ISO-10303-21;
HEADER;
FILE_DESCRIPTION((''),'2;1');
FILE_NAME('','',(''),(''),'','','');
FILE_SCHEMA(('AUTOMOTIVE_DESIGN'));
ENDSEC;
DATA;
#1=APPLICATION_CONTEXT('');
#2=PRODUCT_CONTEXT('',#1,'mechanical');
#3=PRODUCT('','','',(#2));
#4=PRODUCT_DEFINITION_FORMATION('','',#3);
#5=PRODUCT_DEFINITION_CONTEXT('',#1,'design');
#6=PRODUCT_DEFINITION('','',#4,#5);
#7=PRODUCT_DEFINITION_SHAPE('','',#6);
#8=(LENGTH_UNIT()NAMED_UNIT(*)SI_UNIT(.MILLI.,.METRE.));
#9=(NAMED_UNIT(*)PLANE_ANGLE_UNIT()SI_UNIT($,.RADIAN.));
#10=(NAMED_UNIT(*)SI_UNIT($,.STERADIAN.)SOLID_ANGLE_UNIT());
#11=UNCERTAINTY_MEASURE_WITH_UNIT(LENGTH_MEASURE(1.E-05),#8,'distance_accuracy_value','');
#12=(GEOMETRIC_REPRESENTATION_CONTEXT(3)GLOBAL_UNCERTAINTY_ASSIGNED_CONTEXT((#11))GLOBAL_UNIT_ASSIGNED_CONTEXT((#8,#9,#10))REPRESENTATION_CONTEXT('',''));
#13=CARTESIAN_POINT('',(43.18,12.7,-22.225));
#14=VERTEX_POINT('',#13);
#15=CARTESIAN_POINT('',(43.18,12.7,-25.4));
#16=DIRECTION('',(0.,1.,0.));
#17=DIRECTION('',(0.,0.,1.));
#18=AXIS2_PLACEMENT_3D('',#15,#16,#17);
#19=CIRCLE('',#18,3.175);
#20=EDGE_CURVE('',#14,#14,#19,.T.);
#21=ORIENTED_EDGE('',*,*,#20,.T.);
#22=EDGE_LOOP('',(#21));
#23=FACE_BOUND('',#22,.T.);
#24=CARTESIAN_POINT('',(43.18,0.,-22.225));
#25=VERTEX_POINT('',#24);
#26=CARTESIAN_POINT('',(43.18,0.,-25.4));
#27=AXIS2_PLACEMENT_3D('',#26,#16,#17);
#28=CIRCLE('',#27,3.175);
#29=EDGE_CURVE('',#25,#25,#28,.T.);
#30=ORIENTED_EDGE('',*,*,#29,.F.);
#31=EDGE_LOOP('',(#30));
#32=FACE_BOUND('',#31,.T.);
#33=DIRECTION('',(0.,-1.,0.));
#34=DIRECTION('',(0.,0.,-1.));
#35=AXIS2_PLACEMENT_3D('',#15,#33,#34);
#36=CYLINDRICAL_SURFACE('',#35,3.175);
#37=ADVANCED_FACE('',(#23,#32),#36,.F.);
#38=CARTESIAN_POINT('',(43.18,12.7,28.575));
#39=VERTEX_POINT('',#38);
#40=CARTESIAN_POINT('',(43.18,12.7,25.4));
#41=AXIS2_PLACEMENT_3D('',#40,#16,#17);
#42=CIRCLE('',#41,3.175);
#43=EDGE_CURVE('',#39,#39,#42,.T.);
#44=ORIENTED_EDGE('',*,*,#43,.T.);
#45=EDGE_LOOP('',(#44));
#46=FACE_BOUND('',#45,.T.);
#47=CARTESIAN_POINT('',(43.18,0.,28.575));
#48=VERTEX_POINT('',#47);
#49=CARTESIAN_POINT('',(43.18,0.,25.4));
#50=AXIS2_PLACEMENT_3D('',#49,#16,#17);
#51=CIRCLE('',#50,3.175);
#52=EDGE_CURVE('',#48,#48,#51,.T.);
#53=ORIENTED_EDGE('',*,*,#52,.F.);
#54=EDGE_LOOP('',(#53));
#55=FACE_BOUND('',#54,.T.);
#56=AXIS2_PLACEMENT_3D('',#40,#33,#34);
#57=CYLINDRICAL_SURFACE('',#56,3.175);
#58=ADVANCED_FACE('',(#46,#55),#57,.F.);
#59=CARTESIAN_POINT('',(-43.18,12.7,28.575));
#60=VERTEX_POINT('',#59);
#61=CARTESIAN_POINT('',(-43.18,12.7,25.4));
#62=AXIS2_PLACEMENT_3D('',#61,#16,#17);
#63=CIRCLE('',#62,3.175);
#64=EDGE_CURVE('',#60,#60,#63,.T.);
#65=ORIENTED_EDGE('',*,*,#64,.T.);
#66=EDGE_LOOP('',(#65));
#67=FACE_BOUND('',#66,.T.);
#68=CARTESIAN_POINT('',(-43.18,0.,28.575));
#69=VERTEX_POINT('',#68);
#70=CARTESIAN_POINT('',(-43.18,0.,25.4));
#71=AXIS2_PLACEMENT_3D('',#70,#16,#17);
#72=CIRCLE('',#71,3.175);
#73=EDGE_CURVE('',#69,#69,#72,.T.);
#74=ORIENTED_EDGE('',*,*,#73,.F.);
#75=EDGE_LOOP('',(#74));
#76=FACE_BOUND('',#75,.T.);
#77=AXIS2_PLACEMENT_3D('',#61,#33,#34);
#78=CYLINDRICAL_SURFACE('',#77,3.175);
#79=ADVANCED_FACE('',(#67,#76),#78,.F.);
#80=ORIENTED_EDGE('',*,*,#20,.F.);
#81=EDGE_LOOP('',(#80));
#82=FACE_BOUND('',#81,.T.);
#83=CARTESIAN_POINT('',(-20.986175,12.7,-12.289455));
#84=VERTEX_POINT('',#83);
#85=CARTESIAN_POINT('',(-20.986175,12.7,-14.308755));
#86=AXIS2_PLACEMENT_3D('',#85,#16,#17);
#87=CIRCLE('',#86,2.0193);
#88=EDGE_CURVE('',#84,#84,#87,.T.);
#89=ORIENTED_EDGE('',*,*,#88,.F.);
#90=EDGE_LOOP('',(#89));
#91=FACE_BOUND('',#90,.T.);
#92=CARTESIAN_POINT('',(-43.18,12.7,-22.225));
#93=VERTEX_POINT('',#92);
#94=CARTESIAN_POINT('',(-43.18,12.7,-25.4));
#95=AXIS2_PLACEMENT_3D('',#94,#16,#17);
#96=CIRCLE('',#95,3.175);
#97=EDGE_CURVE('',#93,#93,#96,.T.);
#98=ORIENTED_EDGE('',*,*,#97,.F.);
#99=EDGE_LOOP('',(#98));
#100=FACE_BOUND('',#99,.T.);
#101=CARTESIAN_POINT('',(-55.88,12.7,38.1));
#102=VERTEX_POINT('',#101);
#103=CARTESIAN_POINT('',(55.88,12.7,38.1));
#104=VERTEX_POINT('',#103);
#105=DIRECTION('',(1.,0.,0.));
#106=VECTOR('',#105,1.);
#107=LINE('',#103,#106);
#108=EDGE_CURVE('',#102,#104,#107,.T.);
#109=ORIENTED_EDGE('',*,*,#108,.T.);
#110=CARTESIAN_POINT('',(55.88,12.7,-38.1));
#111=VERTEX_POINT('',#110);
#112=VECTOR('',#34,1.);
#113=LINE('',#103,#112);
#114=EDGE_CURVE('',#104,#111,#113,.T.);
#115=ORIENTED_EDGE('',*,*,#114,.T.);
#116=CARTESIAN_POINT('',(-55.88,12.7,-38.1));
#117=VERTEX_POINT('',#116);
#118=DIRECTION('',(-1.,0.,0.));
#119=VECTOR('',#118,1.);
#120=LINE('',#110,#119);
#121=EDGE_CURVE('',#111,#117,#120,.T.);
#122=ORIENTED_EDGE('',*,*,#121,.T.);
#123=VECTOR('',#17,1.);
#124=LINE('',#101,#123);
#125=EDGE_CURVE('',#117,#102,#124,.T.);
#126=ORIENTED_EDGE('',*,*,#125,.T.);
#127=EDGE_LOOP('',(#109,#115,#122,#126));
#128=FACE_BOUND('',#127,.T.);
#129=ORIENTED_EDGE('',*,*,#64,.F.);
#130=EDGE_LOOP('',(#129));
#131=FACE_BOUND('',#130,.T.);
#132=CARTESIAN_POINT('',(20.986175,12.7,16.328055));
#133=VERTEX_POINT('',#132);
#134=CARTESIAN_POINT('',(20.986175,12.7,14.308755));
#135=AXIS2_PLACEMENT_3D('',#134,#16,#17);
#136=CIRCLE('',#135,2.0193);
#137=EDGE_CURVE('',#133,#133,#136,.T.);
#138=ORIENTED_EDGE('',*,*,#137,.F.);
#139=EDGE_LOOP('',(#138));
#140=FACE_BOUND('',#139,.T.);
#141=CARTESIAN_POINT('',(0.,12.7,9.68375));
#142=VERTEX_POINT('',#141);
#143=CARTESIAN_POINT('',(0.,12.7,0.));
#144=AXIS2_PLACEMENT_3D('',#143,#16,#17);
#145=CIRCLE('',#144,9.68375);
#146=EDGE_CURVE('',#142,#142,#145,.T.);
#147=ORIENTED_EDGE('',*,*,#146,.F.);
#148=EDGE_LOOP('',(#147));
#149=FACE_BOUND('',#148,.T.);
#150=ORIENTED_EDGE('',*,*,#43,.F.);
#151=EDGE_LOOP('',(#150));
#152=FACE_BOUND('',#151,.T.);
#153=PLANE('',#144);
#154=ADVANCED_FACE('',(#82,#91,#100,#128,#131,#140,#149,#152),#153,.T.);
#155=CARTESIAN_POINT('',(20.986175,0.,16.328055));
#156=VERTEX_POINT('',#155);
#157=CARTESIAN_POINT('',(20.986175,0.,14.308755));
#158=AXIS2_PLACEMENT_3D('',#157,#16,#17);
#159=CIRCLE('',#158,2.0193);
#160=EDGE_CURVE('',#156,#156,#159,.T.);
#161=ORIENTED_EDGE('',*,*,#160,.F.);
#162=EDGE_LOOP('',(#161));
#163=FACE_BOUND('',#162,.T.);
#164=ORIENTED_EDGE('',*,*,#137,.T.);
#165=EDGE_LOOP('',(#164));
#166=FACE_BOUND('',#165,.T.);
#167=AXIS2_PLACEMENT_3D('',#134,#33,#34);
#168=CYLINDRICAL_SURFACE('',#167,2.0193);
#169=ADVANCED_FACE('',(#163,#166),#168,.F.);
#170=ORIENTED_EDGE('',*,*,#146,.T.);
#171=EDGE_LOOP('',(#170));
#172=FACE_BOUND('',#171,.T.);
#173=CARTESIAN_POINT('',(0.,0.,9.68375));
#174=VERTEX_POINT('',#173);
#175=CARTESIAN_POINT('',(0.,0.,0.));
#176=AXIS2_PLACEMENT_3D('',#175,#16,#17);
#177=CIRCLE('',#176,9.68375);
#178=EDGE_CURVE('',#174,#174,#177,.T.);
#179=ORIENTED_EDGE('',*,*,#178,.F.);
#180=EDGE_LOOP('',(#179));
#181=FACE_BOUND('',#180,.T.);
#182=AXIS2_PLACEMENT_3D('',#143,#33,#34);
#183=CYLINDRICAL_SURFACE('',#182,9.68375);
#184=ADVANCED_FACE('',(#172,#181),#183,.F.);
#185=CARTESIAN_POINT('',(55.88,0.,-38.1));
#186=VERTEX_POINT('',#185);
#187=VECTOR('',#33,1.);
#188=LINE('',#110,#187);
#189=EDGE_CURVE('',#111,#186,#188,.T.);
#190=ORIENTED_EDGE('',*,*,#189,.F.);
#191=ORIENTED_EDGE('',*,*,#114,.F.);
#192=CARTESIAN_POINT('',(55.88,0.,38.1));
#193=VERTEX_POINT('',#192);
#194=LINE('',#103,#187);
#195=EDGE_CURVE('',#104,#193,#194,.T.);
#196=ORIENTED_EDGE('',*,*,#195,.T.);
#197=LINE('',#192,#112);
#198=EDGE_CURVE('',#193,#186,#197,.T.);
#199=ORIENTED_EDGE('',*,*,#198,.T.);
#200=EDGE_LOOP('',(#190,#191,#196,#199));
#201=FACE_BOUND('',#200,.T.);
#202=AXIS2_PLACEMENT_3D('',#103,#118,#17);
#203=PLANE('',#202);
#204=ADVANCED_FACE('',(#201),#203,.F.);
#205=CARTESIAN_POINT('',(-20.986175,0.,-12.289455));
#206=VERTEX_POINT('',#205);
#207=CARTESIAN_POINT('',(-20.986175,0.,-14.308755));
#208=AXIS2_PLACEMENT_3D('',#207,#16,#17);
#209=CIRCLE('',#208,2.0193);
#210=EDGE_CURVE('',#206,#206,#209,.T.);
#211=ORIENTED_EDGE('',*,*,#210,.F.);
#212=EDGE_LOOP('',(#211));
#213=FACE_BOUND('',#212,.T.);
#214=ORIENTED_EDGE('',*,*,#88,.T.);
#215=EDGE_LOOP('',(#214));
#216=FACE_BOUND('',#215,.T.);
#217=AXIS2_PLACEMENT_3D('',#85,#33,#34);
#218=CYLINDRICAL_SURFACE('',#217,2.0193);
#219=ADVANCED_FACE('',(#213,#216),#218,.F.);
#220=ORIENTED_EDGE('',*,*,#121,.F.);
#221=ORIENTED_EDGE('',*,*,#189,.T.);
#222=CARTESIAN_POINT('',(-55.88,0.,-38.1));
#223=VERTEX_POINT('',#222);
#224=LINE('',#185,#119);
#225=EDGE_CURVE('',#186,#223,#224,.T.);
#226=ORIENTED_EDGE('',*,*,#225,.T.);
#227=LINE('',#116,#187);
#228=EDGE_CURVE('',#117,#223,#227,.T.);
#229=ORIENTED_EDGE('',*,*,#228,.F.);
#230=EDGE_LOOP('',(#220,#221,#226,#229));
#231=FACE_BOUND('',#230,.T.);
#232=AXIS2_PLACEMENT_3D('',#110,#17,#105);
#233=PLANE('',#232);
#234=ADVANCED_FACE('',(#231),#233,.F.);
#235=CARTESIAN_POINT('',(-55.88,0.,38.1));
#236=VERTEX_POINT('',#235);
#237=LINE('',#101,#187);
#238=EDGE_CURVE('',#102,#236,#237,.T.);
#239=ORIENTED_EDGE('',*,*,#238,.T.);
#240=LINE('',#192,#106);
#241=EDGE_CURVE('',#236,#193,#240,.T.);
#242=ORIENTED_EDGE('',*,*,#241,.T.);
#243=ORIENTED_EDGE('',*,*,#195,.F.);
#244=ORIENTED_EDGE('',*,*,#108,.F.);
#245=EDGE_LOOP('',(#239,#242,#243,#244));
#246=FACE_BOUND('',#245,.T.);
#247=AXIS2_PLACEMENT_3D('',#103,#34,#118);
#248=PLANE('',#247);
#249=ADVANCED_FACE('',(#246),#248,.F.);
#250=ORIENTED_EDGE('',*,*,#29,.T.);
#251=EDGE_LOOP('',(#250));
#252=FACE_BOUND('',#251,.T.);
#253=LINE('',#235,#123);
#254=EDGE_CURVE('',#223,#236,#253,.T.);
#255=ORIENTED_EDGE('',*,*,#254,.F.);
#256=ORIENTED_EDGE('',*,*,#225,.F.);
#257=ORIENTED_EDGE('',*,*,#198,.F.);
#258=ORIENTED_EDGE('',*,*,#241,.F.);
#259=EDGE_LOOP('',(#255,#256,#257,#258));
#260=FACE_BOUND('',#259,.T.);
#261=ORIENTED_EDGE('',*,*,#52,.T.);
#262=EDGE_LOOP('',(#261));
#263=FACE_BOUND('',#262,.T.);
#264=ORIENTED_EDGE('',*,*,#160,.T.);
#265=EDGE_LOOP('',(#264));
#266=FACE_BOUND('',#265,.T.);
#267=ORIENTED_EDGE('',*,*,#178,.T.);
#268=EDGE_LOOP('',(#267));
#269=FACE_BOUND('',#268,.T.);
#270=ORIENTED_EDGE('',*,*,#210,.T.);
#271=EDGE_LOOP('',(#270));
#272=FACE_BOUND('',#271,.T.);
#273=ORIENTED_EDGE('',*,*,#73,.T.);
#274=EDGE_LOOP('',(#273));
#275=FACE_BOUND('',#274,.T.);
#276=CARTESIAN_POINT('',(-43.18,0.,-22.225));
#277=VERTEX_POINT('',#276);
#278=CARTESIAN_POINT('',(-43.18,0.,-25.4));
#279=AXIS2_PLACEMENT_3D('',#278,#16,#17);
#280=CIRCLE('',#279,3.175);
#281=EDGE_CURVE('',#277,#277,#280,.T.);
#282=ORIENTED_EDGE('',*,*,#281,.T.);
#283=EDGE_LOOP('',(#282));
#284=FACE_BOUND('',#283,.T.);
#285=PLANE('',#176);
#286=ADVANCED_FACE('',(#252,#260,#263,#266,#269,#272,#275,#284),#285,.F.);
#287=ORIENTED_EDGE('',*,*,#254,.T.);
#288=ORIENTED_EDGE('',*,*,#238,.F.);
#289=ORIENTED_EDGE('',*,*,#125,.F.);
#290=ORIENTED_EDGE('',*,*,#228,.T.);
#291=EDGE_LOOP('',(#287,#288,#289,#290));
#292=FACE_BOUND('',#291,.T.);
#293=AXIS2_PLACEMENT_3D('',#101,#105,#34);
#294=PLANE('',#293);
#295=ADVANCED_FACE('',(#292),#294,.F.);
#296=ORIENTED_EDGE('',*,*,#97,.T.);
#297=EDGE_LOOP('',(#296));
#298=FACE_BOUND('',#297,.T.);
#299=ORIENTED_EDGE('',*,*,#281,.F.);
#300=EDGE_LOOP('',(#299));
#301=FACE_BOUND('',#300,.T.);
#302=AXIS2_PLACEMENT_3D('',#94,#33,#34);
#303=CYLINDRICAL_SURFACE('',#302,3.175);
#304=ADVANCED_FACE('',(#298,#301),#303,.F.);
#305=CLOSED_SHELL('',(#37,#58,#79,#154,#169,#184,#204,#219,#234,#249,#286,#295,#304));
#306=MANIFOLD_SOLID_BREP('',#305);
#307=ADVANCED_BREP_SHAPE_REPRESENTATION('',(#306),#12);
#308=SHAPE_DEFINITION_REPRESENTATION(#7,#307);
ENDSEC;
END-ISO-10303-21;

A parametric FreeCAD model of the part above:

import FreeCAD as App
import Part
import Sketcher

V = App.Vector
Q = App.Units.Quantity


def add_polygon(sketch, points):
    """Adds a closed chain of lines whose ends are joined by coincident constraints."""
    first, n = sketch.GeometryCount, len(points)
    for a, b in zip(points, points[1:] + points[:1]):
        sketch.addGeometry(Part.LineSegment(App.Vector(*a, 0), App.Vector(*b, 0)), False)
    for i in range(n):
        sketch.addConstraint(Sketcher.Constraint("Coincident", first + i, 2, first + (i + 1) % n, 1))

doc = App.newDocument("Part")
params = doc.addObject("Spreadsheet::Sheet", "Params")
for row, (alias, value) in enumerate([
    ("sketch1_diameter", "0.25 in"),
    ("sketch1_height", "3 in"),
    ("sketch1_diameter2", "0.159 in"),
    ("sketch1_width", "4.4 in"),
    ("pad1_length", "0.5 in"),
], start=1):
    params.set(f"A{row}", alias)
    params.set(f"B{row}", "=" + value)
    params.setAlias(f"B{row}", alias)

body = doc.addObject("PartDesign::Body", "Body")

sketch1 = body.newObject("Sketcher::SketchObject", "Sketch")
sketch1.AttachmentSupport = (doc.getObject("XZ_Plane"), [""])
sketch1.MapMode = "FlatFace"
add_polygon(sketch1, [(-55.88, -38.1), (-55.88, 38.1), (55.88, 38.1), (55.88, -38.1)])
sketch1.addGeometry(Part.Circle(V(-43.18, 25.4, 0), V(0, 0, 1), 3.175), False)
sketch1.addGeometry(Part.Circle(V(20.986175, 14.308755, 0), V(0, 0, 1), 2.0193), False)
sketch1.addGeometry(Part.Circle(V(43.18, 25.4, 0), V(0, 0, 1), 3.175), False)
sketch1.addGeometry(Part.Circle(V(0, 0, 0), V(0, 0, 1), 9.68375), False)
sketch1.addGeometry(Part.Circle(V(-43.18, -25.4, 0), V(0, 0, 1), 3.175), False)
sketch1.addGeometry(Part.Circle(V(-20.986175, -14.308755, 0), V(0, 0, 1), 2.0193), False)
sketch1.addGeometry(Part.Circle(V(43.18, -25.4, 0), V(0, 0, 1), 3.175), False)
sketch1.addConstraint([
    Sketcher.Constraint("Vertical", 0),
    Sketcher.Constraint("Horizontal", 1),
    Sketcher.Constraint("Vertical", 2),
    Sketcher.Constraint("Horizontal", 3),
    Sketcher.Constraint("Coincident", 7, 3, -1, 1),
    Sketcher.Constraint("Equal", 4, 6),
    Sketcher.Constraint("Equal", 6, 8),
    Sketcher.Constraint("Equal", 5, 9),
    Sketcher.Constraint("Equal", 8, 10),
    Sketcher.Constraint("Symmetric", 6, 3, 8, 3, -1, 1),
    Sketcher.Constraint("Symmetric", 5, 3, 9, 3, -1, 1),
    Sketcher.Constraint("Symmetric", 4, 3, 10, 3, -1, 1),
    Sketcher.Constraint("Symmetric", 0, 2, 2, 2, -1, 1),
    Sketcher.Constraint("Symmetric", 4, 3, 6, 3, -2),
    Sketcher.Constraint("Diameter", 4, Q("0.25 in")),
    Sketcher.Constraint("DistanceY", 0, 1, 0, 2, Q("3 in")),
    Sketcher.Constraint("Diameter", 5, Q("0.159 in")),
    Sketcher.Constraint("DistanceX", 1, 1, 1, 2, Q("4.4 in")),
    Sketcher.Constraint("DistanceY", -1, 1, 4, 3, Q("1 in")),
    Sketcher.Constraint("Diameter", 7, Q("0.7625 in")),
    Sketcher.Constraint("DistanceX", 4, 3, -1, 1, Q("1.7 in")),
    Sketcher.Constraint("DistanceX", 9, 3, 5, 3, 41.972349),
    Sketcher.Constraint("DistanceY", 9, 3, 5, 3, 28.617511),
])
sketch1.setExpression("Constraints[18]", "Params.sketch1_diameter")
sketch1.setExpression("Constraints[19]", "Params.sketch1_height")
sketch1.setExpression("Constraints[20]", "Params.sketch1_diameter2")
sketch1.setExpression("Constraints[21]", "Params.sketch1_width")
pad1 = body.newObject("PartDesign::Pad", "Pad")
pad1.Profile = sketch1
pad1.setExpression("Length", "Params.pad1_length")
pad1.Reversed = True

doc.recompute()
